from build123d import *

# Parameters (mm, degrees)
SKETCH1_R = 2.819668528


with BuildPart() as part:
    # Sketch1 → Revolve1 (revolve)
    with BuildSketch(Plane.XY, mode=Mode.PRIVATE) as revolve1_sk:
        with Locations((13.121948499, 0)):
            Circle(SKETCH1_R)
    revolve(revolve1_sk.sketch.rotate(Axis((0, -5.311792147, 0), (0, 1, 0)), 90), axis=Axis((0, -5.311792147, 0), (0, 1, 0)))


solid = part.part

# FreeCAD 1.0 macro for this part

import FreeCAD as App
import Part
import Sketcher

doc = App.newDocument("Part")
params = doc.addObject("Spreadsheet::Sheet", "Params")
for row, (alias, value) in enumerate([
    ("revolution_angle", "360 deg"),
], start=1):
    params.set(f"A{row}", alias)
    params.set(f"B{row}", "=" + value)
    params.setAlias(f"B{row}", alias)

body = doc.addObject("PartDesign::Body", "Body")

sketch1 = body.newObject("Sketcher::SketchObject", "Sketch")
sketch1.AttachmentSupport = (doc.getObject("XY_Plane"), [""])
sketch1.MapMode = "FlatFace"
sketch1.addGeometry(Part.Circle(App.Vector(13.1, 0, 0), App.Vector(0, 0, 1), 2.8), False)
sketch1.addConstraint([
    Sketcher.Constraint("PointOnObject", 0, 3, -1),
    Sketcher.Constraint("Diameter", 0, 5.639337),
    Sketcher.Constraint("DistanceX", -1, 1, 0, 3, 13.121948),
])
revolution = body.newObject("PartDesign::Revolution", "Revolution")
revolution.Profile = sketch1
revolution.ReferenceAxis = (sketch1, ["V_Axis"])
revolution.setExpression("Angle", "Params.revolution_angle")

doc.recompute()
